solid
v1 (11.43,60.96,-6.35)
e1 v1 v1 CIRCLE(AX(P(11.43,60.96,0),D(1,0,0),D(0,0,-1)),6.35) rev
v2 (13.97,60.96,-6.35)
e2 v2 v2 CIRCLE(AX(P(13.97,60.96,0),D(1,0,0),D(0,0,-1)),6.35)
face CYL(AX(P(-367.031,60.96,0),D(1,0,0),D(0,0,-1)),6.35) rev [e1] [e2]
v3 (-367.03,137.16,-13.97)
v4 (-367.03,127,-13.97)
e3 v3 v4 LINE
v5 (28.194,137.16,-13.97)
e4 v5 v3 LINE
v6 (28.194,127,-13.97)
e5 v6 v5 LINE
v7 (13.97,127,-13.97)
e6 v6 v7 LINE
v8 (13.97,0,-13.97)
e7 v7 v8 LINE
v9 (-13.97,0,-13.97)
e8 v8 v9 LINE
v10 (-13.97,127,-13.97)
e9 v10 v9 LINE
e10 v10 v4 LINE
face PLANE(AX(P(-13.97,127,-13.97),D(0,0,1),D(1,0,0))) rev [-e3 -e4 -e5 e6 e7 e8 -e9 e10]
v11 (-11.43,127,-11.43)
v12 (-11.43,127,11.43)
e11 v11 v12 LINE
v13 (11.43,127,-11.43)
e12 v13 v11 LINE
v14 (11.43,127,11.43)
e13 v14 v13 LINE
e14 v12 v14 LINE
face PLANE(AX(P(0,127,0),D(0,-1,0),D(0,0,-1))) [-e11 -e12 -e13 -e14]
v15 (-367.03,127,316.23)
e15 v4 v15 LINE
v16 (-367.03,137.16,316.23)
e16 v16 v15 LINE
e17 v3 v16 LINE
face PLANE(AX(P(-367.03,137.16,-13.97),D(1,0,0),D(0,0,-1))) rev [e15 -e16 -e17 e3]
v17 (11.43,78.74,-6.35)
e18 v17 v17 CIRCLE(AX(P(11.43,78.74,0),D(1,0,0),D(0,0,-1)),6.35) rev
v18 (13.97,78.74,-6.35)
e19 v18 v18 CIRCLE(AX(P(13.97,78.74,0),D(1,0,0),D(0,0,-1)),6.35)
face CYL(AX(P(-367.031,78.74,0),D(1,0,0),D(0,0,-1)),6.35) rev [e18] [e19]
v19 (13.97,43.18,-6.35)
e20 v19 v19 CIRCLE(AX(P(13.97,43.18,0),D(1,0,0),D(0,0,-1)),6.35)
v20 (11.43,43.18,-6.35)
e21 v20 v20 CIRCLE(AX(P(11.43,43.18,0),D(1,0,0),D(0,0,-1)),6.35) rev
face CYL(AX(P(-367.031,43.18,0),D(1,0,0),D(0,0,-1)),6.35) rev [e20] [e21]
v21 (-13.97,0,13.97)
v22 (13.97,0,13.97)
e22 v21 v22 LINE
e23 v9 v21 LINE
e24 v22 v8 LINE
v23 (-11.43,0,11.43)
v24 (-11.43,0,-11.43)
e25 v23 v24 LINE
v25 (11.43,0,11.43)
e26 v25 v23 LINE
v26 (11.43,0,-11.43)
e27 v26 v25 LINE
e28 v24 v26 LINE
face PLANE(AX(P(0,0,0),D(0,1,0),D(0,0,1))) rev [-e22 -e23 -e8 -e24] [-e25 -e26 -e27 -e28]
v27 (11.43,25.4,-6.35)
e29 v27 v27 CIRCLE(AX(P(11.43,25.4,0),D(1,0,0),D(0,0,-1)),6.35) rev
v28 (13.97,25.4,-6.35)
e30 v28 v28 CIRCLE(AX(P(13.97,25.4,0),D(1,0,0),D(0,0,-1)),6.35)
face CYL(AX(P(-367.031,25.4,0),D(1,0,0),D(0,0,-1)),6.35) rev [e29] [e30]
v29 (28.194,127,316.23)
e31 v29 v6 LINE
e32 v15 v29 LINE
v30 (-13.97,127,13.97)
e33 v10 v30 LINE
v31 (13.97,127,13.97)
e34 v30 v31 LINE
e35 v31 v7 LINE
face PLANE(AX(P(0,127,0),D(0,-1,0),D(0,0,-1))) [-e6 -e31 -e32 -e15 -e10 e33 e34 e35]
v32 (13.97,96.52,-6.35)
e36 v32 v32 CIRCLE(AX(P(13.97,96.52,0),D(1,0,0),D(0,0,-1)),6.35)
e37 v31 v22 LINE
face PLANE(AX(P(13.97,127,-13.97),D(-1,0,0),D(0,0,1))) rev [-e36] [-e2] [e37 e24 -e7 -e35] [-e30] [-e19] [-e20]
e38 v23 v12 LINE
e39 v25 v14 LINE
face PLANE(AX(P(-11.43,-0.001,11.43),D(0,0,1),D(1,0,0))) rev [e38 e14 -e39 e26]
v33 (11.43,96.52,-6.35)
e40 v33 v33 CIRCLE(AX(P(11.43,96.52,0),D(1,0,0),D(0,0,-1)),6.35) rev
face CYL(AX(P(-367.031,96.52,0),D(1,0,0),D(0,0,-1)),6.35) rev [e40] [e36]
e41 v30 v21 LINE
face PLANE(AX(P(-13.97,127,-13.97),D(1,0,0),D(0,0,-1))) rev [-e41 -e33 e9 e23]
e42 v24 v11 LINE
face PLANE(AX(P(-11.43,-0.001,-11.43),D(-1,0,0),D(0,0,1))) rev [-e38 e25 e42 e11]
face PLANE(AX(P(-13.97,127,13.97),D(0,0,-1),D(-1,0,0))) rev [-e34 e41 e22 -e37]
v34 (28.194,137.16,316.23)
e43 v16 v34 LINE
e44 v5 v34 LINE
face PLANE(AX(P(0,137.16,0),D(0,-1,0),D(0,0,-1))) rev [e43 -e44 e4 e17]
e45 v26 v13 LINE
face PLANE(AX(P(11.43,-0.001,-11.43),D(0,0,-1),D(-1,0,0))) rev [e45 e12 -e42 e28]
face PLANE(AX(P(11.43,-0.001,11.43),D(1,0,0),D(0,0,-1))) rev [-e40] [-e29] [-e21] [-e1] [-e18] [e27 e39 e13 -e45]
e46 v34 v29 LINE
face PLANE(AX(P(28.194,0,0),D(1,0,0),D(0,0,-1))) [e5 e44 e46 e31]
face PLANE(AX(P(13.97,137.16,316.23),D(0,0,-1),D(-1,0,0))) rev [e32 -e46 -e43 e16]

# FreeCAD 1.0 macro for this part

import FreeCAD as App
import Part
import Sketcher

V = App.Vector
Q = App.Units.Quantity


def add_polygon(sketch, points):
    """Adds a closed chain of lines whose ends are joined by coincident constraints."""
    first, n = sketch.GeometryCount, len(points)
    for a, b in zip(points, points[1:] + points[:1]):
        sketch.addGeometry(Part.LineSegment(App.Vector(*a, 0), App.Vector(*b, 0)), False)
    for i in range(n):
        sketch.addConstraint(Sketcher.Constraint("Coincident", first + i, 2, first + (i + 1) % n, 1))

doc = App.newDocument("Part")
body = doc.addObject("PartDesign::Body", "Body")

# Sketch on XZ plane
sketch1 = doc.addObject("Sketcher::SketchObject", "Sketch")
body.addObject(sketch1)
sketch1.AttachmentSupport = (doc.XZ_Plane, [""])
sketch1.MapMode = "FlatFace"
add_polygon(sketch1, [(-14, -14), (-14, 14), (14, 14), (14, -14)])  # lines 0-3
sketch1.addConstraint([
    Sketcher.Constraint("Vertical", 0),
    Sketcher.Constraint("Horizontal", 1),
    Sketcher.Constraint("Vertical", 2),
    Sketcher.Constraint("Horizontal", 3),
    Sketcher.Constraint("Symmetric", 0, 2, 2, 2, -1, 1),
    Sketcher.Constraint("Equal", 3, 0),
    Sketcher.Constraint("DistanceX", 1, 1, 1, 2, Q("1.1 in")),
])
pad1 = doc.addObject("PartDesign::Pad", "Pad")
body.addObject(pad1)
pad1.Profile = sketch1
pad1.Length = Q("5 in")
pad1.Reversed = True

# Sketch on XZ plane
sketch2 = doc.addObject("Sketcher::SketchObject", "Sketch001")
body.addObject(sketch2)
sketch2.AttachmentSupport = (doc.XZ_Plane, [""])
sketch2.MapMode = "FlatFace"
sketch2.AttachmentOffset = App.Placement(V(0, 0, -5 * 25.4), App.Rotation())
add_polygon(sketch2, [(-11, -11), (-11, 11), (11, 11), (11, -11)])  # lines 0-3
sketch2.addConstraint([
    Sketcher.Constraint("Vertical", 0),
    Sketcher.Constraint("Horizontal", 1),
    Sketcher.Constraint("Vertical", 2),
    Sketcher.Constraint("Horizontal", 3),
    Sketcher.Constraint("Symmetric", 0, 2, 2, 2, -1, 1),
    Sketcher.Constraint("Equal", 3, 0),
    Sketcher.Constraint("DistanceX", 1, 1, 1, 2, Q("0.9 in")),
])
pocket1 = doc.addObject("PartDesign::Pocket", "Pocket")
body.addObject(pocket1)
pocket1.Profile = sketch2
pocket1.Type = "UpToFirst"
pocket1.Reversed = True

# Sketch on XZ plane
sketch3 = doc.addObject("Sketcher::SketchObject", "Sketch002")
body.addObject(sketch3)
sketch3.AttachmentSupport = (doc.XZ_Plane, [""])
sketch3.MapMode = "FlatFace"
sketch3.AttachmentOffset = App.Placement(V(0, 0, -5 * 25.4), App.Rotation())
add_polygon(sketch3, [(-367, -14), (-367, 316), (14, 316), (14, -14)])  # lines 0-3
sketch3.addConstraint([
    Sketcher.Constraint("Vertical", 0),
    Sketcher.Constraint("Horizontal", 1),
    Sketcher.Constraint("Vertical", 2),
    Sketcher.Constraint("Horizontal", 3),
    Sketcher.Constraint("DistanceX", 1, 1, 1, 2, Q("15 in")),
    Sketcher.Constraint("DistanceY", 0, 1, 0, 2, Q("13 in")),
    Sketcher.Constraint("DistanceX", 0, 2, -1, 1, Q("14.45 in")),
    Sketcher.Constraint("DistanceY", -1, 1, 0, 2, Q("12.45 in")),
])
pad2 = doc.addObject("PartDesign::Pad", "Pad001")
body.addObject(pad2)
pad2.Profile = sketch3
pad2.Length = Q("0.4 in")
pad2.Reversed = True

# Sketch on YZ plane
sketch4 = doc.addObject("Sketcher::SketchObject", "Sketch003")
body.addObject(sketch4)
sketch4.AttachmentSupport = (doc.YZ_Plane, [""])
sketch4.MapMode = "FlatFace"
sketch4.AttachmentOffset = App.Placement(V(0, 0, 0.55 * 25.4), App.Rotation())
sketch4.addGeometry(Part.Circle(V(25, 0, 0), V(0, 0, 1), 6), False)
sketch4.addConstraint([
    Sketcher.Constraint("PointOnObject", 0, 3, -1),
    Sketcher.Constraint("Diameter", 0, Q("0.5 in")),
    Sketcher.Constraint("DistanceX", -1, 1, 0, 3, Q("1 in")),
])
pocket2 = doc.addObject("PartDesign::Pocket", "Pocket001")
body.addObject(pocket2)
pocket2.Profile = sketch4
pocket2.Type = "UpToFirst"

# Sketch on YZ plane
sketch5 = doc.addObject("Sketcher::SketchObject", "Sketch004")
body.addObject(sketch5)
sketch5.AttachmentSupport = (doc.YZ_Plane, [""])
sketch5.MapMode = "FlatFace"
sketch5.AttachmentOffset = App.Placement(V(0, 0, 0.55 * 25.4), App.Rotation())
sketch5.addGeometry(Part.Circle(V(43, 0, 0), V(0, 0, 1), 6), False)
sketch5.addConstraint([
    Sketcher.Constraint("PointOnObject", 0, 3, -1),
    Sketcher.Constraint("Diameter", 0, Q("0.5 in")),
    Sketcher.Constraint("DistanceX", -1, 1, 0, 3, Q("1.7 in")),
])
pocket3 = doc.addObject("PartDesign::Pocket", "Pocket002")
body.addObject(pocket3)
pocket3.Profile = sketch5
pocket3.Type = "UpToFirst"

# Sketch on YZ plane
sketch6 = doc.addObject("Sketcher::SketchObject", "Sketch005")
body.addObject(sketch6)
sketch6.AttachmentSupport = (doc.YZ_Plane, [""])
sketch6.MapMode = "FlatFace"
sketch6.AttachmentOffset = App.Placement(V(0, 0, 0.55 * 25.4), App.Rotation())
sketch6.addGeometry(Part.Circle(V(61, 0, 0), V(0, 0, 1), 6), False)
sketch6.addConstraint([
    Sketcher.Constraint("PointOnObject", 0, 3, -1),
    Sketcher.Constraint("Diameter", 0, Q("0.5 in")),
    Sketcher.Constraint("DistanceX", -1, 1, 0, 3, Q("2.4 in")),
])
pocket4 = doc.addObject("PartDesign::Pocket", "Pocket003")
body.addObject(pocket4)
pocket4.Profile = sketch6
pocket4.Type = "UpToFirst"

# Sketch on YZ plane
sketch7 = doc.addObject("Sketcher::SketchObject", "Sketch006")
body.addObject(sketch7)
sketch7.AttachmentSupport = (doc.YZ_Plane, [""])
sketch7.MapMode = "FlatFace"
sketch7.AttachmentOffset = App.Placement(V(0, 0, 0.55 * 25.4), App.Rotation())
sketch7.addGeometry(Part.Circle(V(79, 0, 0), V(0, 0, 1), 6), False)
sketch7.addConstraint([
    Sketcher.Constraint("PointOnObject", 0, 3, -1),
    Sketcher.Constraint("Diameter", 0, Q("0.5 in")),
    Sketcher.Constraint("DistanceX", -1, 1, 0, 3, Q("3.1 in")),
])
pocket5 = doc.addObject("PartDesign::Pocket", "Pocket004")
body.addObject(pocket5)
pocket5.Profile = sketch7
pocket5.Type = "UpToFirst"

# Sketch on YZ plane
sketch8 = doc.addObject("Sketcher::SketchObject", "Sketch007")
body.addObject(sketch8)
sketch8.AttachmentSupport = (doc.YZ_Plane, [""])
sketch8.MapMode = "FlatFace"
sketch8.AttachmentOffset = App.Placement(V(0, 0, 0.55 * 25.4), App.Rotation())
sketch8.addGeometry(Part.Circle(V(97, 0, 0), V(0, 0, 1), 6), False)
sketch8.addConstraint([
    Sketcher.Constraint("PointOnObject", 0, 3, -1),
    Sketcher.Constraint("Diameter", 0, Q("0.5 in")),
    Sketcher.Constraint("DistanceX", -1, 1, 0, 3, Q("3.8 in")),
])
pocket6 = doc.addObject("PartDesign::Pocket", "Pocket005")
body.addObject(pocket6)
pocket6.Profile = sketch8
pocket6.Type = "UpToFirst"

# Sketch on YZ plane
sketch9 = doc.addObject("Sketcher::SketchObject", "Sketch008")
body.addObject(sketch9)
sketch9.AttachmentSupport = (doc.YZ_Plane, [""])
sketch9.MapMode = "FlatFace"
sketch9.AttachmentOffset = App.Placement(V(0, 0, 0.55 * 25.4), App.Rotation())
add_polygon(sketch9, [(137, 316), (127, 316), (127, -14), (137, -14)])  # lines 0-3
sketch9.addConstraint([
    Sketcher.Constraint("Horizontal", 0),
    Sketcher.Constraint("Vertical", 1),
    Sketcher.Constraint("Horizontal", 2),
    Sketcher.Constraint("Vertical", 3),
    Sketcher.Constraint("DistanceY", 1, 2, 1, 1, Q("13 in")),
    Sketcher.Constraint("DistanceX", 0, 2, 0, 1, Q("0.4 in")),
    Sketcher.Constraint("DistanceX", -1, 1, 0, 2, Q("5 in")),
    Sketcher.Constraint("DistanceY", -1, 1, 0, 2, Q("12.45 in")),
])
pad3 = doc.addObject("PartDesign::Pad", "Pad002")
body.addObject(pad3)
pad3.Profile = sketch9
pad3.Length = Q("8 in")

# Sketch on XZ plane
sketch10 = doc.addObject("Sketcher::SketchObject", "Sketch009")
body.addObject(sketch10)
sketch10.AttachmentSupport = (doc.XZ_Plane, [""])
sketch10.MapMode = "FlatFace"
sketch10.AttachmentOffset = App.Placement(V(0, 0, -5 * 25.4), App.Rotation())
sketch10.addGeometry(Part.Circle(V(90, 44, 0), V(0, 0, 1), 8), False)
sketch10.addConstraint([
    Sketcher.Constraint("Diameter", 0, Q("15 mm")),
    Sketcher.Constraint("DistanceX", -1, 1, 0, 3, Q("3.55 in")),
    Sketcher.Constraint("DistanceY", -1, 1, 0, 3, Q("43.501665 mm")),
])
pocket7 = doc.addObject("PartDesign::Pocket", "Pocket006")
body.addObject(pocket7)
pocket7.Profile = sketch10
pocket7.Length = Q("0.2 in")

# Sketch on YZ plane
sketch11 = doc.addObject("Sketcher::SketchObject", "Sketch010")
body.addObject(sketch11)
sketch11.AttachmentSupport = (doc.YZ_Plane, [""])
sketch11.MapMode = "FlatFace"
sketch11.AttachmentOffset = App.Placement(V(0, 0, 8.55 * 25.4), App.Rotation())
add_polygon(sketch11, [(137, 316), (127, 316), (127, -14), (137, -14)])  # lines 0-3
sketch11.addConstraint([
    Sketcher.Constraint("Horizontal", 0),
    Sketcher.Constraint("Vertical", 1),
    Sketcher.Constraint("Horizontal", 2),
    Sketcher.Constraint("Vertical", 3),
    Sketcher.Constraint("DistanceY", 1, 2, 1, 1, Q("13 in")),
    Sketcher.Constraint("DistanceX", 0, 2, 0, 1, Q("0.4 in")),
    Sketcher.Constraint("DistanceX", -1, 1, 0, 2, Q("5 in")),
    Sketcher.Constraint("DistanceY", -1, 1, 0, 2, Q("12.45 in")),
])
pocket8 = doc.addObject("PartDesign::Pocket", "Pocket007")
body.addObject(pocket8)
pocket8.Profile = sketch11
pocket8.Length = Q("7.44 in")

doc.recompute()
